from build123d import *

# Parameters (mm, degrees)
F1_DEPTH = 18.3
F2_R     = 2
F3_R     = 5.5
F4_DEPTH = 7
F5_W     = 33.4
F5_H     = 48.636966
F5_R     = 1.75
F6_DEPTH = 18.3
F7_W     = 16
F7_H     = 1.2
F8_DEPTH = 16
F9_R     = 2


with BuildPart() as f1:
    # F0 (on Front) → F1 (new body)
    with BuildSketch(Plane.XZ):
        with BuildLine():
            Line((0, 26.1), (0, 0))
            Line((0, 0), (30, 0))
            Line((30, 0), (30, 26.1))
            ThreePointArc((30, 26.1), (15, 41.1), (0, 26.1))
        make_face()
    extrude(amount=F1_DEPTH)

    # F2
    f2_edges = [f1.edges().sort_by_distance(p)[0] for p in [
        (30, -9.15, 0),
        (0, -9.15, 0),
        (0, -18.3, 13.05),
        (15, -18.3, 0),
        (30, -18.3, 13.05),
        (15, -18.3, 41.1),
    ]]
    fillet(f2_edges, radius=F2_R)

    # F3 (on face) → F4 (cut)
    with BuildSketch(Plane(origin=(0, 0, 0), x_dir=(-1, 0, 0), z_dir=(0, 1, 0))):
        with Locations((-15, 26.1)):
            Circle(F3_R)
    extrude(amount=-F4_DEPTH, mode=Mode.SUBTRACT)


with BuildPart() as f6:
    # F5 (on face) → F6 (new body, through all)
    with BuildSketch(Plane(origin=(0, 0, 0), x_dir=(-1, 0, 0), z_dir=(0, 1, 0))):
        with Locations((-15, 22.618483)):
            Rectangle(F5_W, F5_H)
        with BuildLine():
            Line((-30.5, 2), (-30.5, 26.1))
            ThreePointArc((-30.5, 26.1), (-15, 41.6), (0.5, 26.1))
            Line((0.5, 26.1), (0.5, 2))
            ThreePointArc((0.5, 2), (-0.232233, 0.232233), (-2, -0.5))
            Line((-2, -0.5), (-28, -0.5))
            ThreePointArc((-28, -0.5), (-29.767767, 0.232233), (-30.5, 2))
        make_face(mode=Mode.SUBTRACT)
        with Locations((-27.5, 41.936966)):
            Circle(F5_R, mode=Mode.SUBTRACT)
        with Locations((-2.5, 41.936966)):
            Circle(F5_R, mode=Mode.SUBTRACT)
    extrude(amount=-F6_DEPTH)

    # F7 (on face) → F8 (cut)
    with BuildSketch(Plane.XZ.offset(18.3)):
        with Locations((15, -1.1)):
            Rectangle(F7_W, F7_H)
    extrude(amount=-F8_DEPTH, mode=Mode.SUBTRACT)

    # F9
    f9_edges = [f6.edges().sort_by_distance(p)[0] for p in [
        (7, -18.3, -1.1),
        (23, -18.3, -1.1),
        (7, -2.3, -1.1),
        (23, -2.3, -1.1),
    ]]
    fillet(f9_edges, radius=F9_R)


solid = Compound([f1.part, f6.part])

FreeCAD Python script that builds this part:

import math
import FreeCAD as App
import Part
import Sketcher

V = App.Vector


def edges_at(feature, points):
    """Names of the edges that pass closest to the given points."""
    edges = feature.Shape.Edges
    near = lambda p: min(range(len(edges)), key=lambda i: edges[i].distToShape(Part.Vertex(*p))[0])
    return sorted({f"Edge{near(p) + 1}" for p in points})


def add_polygon(sketch, points):
    """Adds a closed chain of lines whose ends are joined by coincident constraints."""
    first, n = sketch.GeometryCount, len(points)
    for a, b in zip(points, points[1:] + points[:1]):
        sketch.addGeometry(Part.LineSegment(App.Vector(*a, 0), App.Vector(*b, 0)), False)
    for i in range(n):
        sketch.addConstraint(Sketcher.Constraint("Coincident", first + i, 2, first + (i + 1) % n, 1))

doc = App.newDocument("Part")
body = doc.addObject("PartDesign::Body", "Body")

# Sketch on XZ plane
sketch1 = body.newObject("Sketcher::SketchObject", "Sketch")
sketch1.AttachmentSupport = (doc.getObject("XZ_Plane"), [""])
sketch1.MapMode = "FlatFace"
sketch1.addGeometry(Part.LineSegment(V(0, 26, 0), V(0, 0, 0)), False)
sketch1.addGeometry(Part.LineSegment(V(0, 0, 0), V(30, 0, 0)), False)
sketch1.addGeometry(Part.LineSegment(V(30, 0, 0), V(30, 26, 0)), False)
sketch1.addGeometry(Part.ArcOfCircle(Part.Circle(V(15, 26, 0), V(0, 0, 1), 15), math.radians(0), math.radians(180)), False)
sketch1.addConstraint(Sketcher.Constraint("Coincident", 0, 2, 1, 1))
sketch1.addConstraint(Sketcher.Constraint("Coincident", 1, 2, 2, 1))
sketch1.addConstraint(Sketcher.Constraint("Tangent", 2, 2, 3, 1))
sketch1.addConstraint(Sketcher.Constraint("Tangent", 3, 2, 0, 1))
sketch1.addConstraint(Sketcher.Constraint("Vertical", 0))
sketch1.addConstraint(Sketcher.Constraint("Horizontal", 1))
sketch1.addConstraint(Sketcher.Constraint("Vertical", 2))
sketch1.addConstraint(Sketcher.Constraint("Coincident", 0, 2, -1, 1))
sketch1.addConstraint(Sketcher.Constraint("Radius", 3, 15.0))
sketch1.addConstraint(Sketcher.Constraint("DistanceY", 0, 2, 0, 1, 26.1))
pad1 = body.newObject("PartDesign::Pad", "Pad")
pad1.Profile = sketch1
pad1.Length = 18.3
doc.recompute()

fillet = body.newObject("PartDesign::Fillet", "Fillet")
fillet.Base = (pad1, edges_at(pad1, [
    (30, -9.15, 0),
    (0, -9.15, 0),
    (0, -18.3, 13.05),
    (15, -18.3, 0),
    (30, -18.3, 13.05),
    (15, -18.3, 41.1),
]))
fillet.Radius = 2

# Sketch on XZ plane
sketch2 = body.newObject("Sketcher::SketchObject", "Sketch001")
sketch2.AttachmentSupport = (doc.getObject("XZ_Plane"), [""])
sketch2.MapMode = "FlatFace"
sketch2.addGeometry(Part.Circle(V(15, 26, 0), V(0, 0, 1), 6), False)
sketch2.addConstraint(Sketcher.Constraint("Diameter", 0, 11.0))
sketch2.addConstraint(Sketcher.Constraint("DistanceX", -1, 1, 0, 3, 15.0))
sketch2.addConstraint(Sketcher.Constraint("DistanceY", -1, 1, 0, 3, 26.1))
pocket1 = body.newObject("PartDesign::Pocket", "Pocket")
pocket1.Profile = sketch2
pocket1.Length = 7
pocket1.Reversed = True
body2 = doc.addObject("PartDesign::Body", "Body001")

# Sketch on XZ plane
sketch3 = body2.newObject("Sketcher::SketchObject", "Sketch002")
sketch3.AttachmentSupport = (doc.getObject("XZ_Plane001"), [""])
sketch3.MapMode = "FlatFace"
add_polygon(sketch3, [(31.7, 46.9), (31.7, -1.7), (-1.7, -1.7), (-1.7, 46.9)])  # lines 0-3
sketch3.addGeometry(Part.ArcOfCircle(Part.Circle(V(28, 2, 0), V(0, 0, 1), 2.5), math.radians(-90), math.radians(0)), False)  # 4
sketch3.addGeometry(Part.LineSegment(V(30.5, 2, 0), V(30.5, 26.1, 0)), False)  # 5
sketch3.addGeometry(Part.ArcOfCircle(Part.Circle(V(15, 26.1, 0), V(0, 0, 1), 15.5), math.radians(0), math.radians(180)), False)  # 6
sketch3.addGeometry(Part.LineSegment(V(-0.5, 26.1, 0), V(-0.5, 2, 0)), False)  # 7
sketch3.addGeometry(Part.ArcOfCircle(Part.Circle(V(2, 2, 0), V(0, 0, 1), 2.5), math.radians(180), math.radians(270)), False)  # 8
sketch3.addGeometry(Part.LineSegment(V(2, -0.5, 0), V(28, -0.5, 0)), False)  # 9
sketch3.addGeometry(Part.Circle(V(27.5, 41.9, 0), V(0, 0, 1), 1.8), False)  # 10
sketch3.addGeometry(Part.Circle(V(2.5, 41.9, 0), V(0, 0, 1), 1.8), False)  # 11
sketch3.addConstraint(Sketcher.Constraint("Tangent", 4, 2, 5, 1))
sketch3.addConstraint(Sketcher.Constraint("Tangent", 5, 2, 6, 1))
sketch3.addConstraint(Sketcher.Constraint("Tangent", 6, 2, 7, 1))
sketch3.addConstraint(Sketcher.Constraint("Tangent", 7, 2, 8, 1))
sketch3.addConstraint(Sketcher.Constraint("Tangent", 8, 2, 9, 1))
sketch3.addConstraint(Sketcher.Constraint("Tangent", 9, 2, 4, 1))
sketch3.addConstraint(Sketcher.Constraint("Vertical", 0))
sketch3.addConstraint(Sketcher.Constraint("Horizontal", 1))
sketch3.addConstraint(Sketcher.Constraint("Vertical", 2))
sketch3.addConstraint(Sketcher.Constraint("Horizontal", 3))
sketch3.addConstraint(Sketcher.Constraint("Vertical", 5))
sketch3.addConstraint(Sketcher.Constraint("Vertical", 7))
sketch3.addConstraint(Sketcher.Constraint("Horizontal", 9))
sketch3.addConstraint(Sketcher.Constraint("Equal", 4, 8))
sketch3.addConstraint(Sketcher.Constraint("Equal", 10, 11))
sketch3.addConstraint(Sketcher.Constraint("Horizontal", 10, 3, 11, 3))
sketch3.addConstraint(Sketcher.Constraint("Diameter", 10, 3.5))
sketch3.addConstraint(Sketcher.Constraint("Radius", 4, 2.5))
sketch3.addConstraint(Sketcher.Constraint("Radius", 6, 15.5))
sketch3.addConstraint(Sketcher.Constraint("DistanceX", 1, 2, 1, 1, 33.4))
sketch3.addConstraint(Sketcher.Constraint("DistanceY", 5, 1, 5, 2, 24.1))
sketch3.addConstraint(Sketcher.Constraint("DistanceX", -1, 1, 4, 3, 28.0))
sketch3.addConstraint(Sketcher.Constraint("DistanceY", -1, 1, 4, 3, 2.0))
sketch3.addConstraint(Sketcher.Constraint("DistanceX", 11, 3, 10, 3, 25.0))
sketch3.addConstraint(Sketcher.Constraint("DistanceY", 11, 3, 2, 2, 5.0))
sketch3.addConstraint(Sketcher.Constraint("DistanceX", 10, 3, 5, 2, 3.0))
sketch3.addConstraint(Sketcher.Constraint("DistanceX", -1, 1, 0, 2, 31.7))
sketch3.addConstraint(Sketcher.Constraint("DistanceY", 0, 2, -1, 1, 1.7))
sketch3.addConstraint(Sketcher.Constraint("DistanceY", 0, 2, 0, 1, 48.636966))
pad2 = body2.newObject("PartDesign::Pad", "Pad001")
pad2.Profile = sketch3
pad2.Length = 18.3

# Sketch on XZ plane
sketch4 = body2.newObject("Sketcher::SketchObject", "Sketch003")
sketch4.AttachmentSupport = (doc.getObject("XZ_Plane001"), [""])
sketch4.MapMode = "FlatFace"
sketch4.AttachmentOffset = App.Placement(V(0, 0, 18.3), App.Rotation())
add_polygon(sketch4, [(7, -0.5), (7, -1.7), (23, -1.7), (23, -0.5)])  # lines 0-3
sketch4.addConstraint(Sketcher.Constraint("Vertical", 0))
sketch4.addConstraint(Sketcher.Constraint("Horizontal", 1))
sketch4.addConstraint(Sketcher.Constraint("Vertical", 2))
sketch4.addConstraint(Sketcher.Constraint("Horizontal", 3))
sketch4.addConstraint(Sketcher.Constraint("DistanceX", 1, 1, 1, 2, 16.0))
sketch4.addConstraint(Sketcher.Constraint("DistanceY", 0, 2, 0, 1, 1.2))
sketch4.addConstraint(Sketcher.Constraint("DistanceX", -1, 1, 0, 2, 7.0))
sketch4.addConstraint(Sketcher.Constraint("DistanceY", 0, 2, -1, 1, 1.7))
pocket2 = body2.newObject("PartDesign::Pocket", "Pocket001")
pocket2.Profile = sketch4
pocket2.Length = 16
doc.recompute()

fillet2 = body2.newObject("PartDesign::Fillet", "Fillet001")
fillet2.Base = (pocket2, edges_at(pocket2, [
    (7, -18.3, -1.1),
    (23, -18.3, -1.1),
    (7, -2.3, -1.1),
    (23, -2.3, -1.1),
]))
fillet2.Radius = 2

doc.recompute()
